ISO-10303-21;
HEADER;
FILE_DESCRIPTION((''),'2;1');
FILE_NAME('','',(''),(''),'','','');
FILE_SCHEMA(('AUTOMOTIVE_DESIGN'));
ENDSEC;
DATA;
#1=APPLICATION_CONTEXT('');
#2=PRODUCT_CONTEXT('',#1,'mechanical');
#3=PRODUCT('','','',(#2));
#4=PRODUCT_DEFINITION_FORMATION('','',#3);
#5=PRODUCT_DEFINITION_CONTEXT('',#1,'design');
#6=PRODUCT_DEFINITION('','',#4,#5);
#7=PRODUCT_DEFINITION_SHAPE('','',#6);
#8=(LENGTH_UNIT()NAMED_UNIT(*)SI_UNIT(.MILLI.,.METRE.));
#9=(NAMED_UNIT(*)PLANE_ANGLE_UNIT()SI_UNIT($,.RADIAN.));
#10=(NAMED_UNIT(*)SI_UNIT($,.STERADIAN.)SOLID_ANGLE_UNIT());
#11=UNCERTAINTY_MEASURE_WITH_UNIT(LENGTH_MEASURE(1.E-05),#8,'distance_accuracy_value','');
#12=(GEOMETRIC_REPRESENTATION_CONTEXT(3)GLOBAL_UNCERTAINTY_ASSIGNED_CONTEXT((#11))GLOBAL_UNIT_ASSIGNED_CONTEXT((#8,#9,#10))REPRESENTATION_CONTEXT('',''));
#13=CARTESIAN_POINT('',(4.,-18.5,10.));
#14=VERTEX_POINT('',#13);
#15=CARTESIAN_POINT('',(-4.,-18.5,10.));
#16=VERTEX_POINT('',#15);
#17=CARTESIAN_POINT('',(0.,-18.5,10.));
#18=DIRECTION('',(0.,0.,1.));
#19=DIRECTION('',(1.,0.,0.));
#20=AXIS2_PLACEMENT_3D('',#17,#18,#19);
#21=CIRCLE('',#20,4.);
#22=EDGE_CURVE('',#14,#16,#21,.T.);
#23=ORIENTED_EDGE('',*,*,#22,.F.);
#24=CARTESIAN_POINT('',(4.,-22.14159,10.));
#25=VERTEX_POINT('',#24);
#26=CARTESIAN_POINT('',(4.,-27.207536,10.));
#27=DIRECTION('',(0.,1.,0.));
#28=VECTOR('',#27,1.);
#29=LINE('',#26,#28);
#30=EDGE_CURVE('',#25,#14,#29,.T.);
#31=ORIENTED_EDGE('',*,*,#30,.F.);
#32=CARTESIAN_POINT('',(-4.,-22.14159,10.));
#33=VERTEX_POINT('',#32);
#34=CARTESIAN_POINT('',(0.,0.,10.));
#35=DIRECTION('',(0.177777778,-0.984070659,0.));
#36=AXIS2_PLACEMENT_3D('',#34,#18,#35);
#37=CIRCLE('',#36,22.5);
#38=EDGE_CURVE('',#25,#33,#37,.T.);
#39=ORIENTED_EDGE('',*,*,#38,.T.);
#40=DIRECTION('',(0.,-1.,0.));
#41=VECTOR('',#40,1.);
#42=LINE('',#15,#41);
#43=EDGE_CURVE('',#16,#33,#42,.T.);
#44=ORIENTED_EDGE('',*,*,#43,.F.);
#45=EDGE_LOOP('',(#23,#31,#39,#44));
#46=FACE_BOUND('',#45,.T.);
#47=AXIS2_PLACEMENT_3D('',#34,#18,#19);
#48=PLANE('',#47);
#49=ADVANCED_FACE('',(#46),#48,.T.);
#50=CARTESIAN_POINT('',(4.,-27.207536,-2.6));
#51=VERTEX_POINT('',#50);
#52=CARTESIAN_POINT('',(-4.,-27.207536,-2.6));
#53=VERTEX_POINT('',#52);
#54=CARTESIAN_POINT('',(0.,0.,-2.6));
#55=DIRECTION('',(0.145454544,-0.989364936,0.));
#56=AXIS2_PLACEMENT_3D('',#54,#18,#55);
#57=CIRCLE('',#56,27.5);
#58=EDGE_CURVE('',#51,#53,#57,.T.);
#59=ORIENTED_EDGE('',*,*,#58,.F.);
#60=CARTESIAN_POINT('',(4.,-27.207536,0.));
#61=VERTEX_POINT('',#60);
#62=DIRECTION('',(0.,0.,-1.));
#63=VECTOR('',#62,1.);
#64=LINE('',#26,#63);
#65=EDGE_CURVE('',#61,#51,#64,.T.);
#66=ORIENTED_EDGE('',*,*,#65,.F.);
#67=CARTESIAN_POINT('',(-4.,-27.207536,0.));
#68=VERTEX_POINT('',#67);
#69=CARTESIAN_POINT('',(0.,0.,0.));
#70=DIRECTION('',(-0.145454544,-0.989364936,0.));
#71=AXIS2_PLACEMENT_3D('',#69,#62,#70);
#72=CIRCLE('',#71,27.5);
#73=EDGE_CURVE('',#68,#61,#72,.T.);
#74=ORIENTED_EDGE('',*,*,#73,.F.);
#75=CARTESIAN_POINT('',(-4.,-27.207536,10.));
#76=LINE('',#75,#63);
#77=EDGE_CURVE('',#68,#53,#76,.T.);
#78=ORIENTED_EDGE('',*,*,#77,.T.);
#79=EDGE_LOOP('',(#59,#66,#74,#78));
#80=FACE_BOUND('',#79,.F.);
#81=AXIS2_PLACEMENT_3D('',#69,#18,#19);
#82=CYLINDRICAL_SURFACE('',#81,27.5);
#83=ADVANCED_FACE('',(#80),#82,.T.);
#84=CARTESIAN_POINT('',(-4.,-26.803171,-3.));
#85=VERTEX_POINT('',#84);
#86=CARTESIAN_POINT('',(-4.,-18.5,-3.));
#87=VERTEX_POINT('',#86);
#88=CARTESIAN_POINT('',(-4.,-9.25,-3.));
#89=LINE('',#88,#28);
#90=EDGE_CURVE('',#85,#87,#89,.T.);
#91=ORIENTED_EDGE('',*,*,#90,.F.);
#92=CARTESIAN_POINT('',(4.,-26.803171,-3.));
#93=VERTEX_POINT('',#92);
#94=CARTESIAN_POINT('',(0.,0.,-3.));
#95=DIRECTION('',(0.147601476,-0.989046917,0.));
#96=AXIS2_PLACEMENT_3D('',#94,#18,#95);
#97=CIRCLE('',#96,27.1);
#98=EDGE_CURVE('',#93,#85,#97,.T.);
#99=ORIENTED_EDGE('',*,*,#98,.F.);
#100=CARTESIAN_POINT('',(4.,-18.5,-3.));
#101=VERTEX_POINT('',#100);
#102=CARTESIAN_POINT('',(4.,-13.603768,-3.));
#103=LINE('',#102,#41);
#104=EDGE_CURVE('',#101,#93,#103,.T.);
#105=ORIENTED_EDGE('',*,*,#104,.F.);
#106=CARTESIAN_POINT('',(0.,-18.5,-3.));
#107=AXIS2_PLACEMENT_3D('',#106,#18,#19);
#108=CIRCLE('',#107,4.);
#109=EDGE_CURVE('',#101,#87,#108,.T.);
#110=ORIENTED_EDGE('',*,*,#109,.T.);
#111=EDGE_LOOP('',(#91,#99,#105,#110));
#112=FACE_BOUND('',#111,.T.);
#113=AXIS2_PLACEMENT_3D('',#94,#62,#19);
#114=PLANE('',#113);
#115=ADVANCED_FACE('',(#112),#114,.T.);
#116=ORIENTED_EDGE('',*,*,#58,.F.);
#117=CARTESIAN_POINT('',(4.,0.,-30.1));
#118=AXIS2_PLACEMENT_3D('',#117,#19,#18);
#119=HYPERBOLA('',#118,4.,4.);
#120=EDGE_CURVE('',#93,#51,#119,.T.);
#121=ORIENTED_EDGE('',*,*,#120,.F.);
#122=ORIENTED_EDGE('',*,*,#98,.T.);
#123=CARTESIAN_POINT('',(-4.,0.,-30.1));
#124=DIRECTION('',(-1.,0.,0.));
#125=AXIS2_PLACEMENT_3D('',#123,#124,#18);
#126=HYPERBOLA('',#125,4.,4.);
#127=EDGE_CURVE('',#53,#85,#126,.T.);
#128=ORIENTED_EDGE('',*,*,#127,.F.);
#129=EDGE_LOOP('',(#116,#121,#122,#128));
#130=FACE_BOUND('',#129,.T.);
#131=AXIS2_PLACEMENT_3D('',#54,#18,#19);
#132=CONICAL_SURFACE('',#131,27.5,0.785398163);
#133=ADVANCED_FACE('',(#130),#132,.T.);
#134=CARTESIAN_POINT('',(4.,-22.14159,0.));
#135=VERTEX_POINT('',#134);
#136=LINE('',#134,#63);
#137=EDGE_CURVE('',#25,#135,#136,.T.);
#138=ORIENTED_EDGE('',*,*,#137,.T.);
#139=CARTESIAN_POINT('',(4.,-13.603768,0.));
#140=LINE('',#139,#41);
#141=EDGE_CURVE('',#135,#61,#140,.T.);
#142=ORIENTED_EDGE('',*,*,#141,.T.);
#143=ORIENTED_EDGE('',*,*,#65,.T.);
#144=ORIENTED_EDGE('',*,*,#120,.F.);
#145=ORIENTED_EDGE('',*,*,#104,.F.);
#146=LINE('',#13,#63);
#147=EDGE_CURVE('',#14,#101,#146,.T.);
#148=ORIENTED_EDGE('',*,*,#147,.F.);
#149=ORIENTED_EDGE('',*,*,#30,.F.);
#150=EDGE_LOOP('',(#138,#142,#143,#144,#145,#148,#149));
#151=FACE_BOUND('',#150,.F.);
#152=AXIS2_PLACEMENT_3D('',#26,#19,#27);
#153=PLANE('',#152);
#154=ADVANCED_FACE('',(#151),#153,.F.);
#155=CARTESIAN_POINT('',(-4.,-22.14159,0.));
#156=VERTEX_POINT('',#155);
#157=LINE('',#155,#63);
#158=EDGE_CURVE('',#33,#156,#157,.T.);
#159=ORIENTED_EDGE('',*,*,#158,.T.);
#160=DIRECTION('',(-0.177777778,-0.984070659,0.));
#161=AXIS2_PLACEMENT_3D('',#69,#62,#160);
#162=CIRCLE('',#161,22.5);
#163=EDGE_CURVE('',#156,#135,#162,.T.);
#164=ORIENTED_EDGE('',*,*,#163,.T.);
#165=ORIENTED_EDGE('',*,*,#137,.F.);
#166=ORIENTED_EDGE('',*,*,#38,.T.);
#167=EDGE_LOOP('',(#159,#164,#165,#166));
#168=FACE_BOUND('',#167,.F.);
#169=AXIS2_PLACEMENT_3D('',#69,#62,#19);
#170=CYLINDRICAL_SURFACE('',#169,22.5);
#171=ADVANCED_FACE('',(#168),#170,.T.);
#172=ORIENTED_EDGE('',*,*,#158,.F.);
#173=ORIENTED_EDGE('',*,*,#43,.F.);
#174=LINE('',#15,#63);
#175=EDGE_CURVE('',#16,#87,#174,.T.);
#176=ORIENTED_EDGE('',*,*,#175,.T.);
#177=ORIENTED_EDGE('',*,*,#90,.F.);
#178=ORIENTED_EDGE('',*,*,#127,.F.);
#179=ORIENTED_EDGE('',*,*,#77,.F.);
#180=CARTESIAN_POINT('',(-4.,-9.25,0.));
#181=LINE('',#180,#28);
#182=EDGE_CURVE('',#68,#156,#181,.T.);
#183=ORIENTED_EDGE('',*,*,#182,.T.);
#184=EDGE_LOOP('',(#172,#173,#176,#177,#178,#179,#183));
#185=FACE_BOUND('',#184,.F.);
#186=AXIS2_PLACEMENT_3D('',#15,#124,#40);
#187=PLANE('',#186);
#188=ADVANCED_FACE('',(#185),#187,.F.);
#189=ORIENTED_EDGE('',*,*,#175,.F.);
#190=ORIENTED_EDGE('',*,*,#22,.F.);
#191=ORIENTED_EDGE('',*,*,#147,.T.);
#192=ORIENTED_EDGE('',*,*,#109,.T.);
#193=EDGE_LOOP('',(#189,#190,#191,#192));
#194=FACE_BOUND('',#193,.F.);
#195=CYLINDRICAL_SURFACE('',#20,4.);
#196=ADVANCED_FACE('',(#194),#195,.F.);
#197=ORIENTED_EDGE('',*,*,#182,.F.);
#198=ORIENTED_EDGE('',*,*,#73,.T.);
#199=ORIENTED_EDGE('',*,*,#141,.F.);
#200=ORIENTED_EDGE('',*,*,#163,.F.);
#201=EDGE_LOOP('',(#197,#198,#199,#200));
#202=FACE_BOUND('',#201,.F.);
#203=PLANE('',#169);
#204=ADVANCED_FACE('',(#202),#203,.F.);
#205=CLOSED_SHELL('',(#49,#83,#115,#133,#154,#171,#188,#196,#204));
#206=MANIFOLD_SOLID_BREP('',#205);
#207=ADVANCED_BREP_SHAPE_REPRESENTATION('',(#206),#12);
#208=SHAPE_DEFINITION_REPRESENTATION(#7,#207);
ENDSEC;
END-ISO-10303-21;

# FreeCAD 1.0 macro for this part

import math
import FreeCAD as App
import Part
import Sketcher
Q = App.Units.Quantity


def edges_at(feature, points):
    """Names of the edges that pass closest to the given points."""
    edges = feature.Shape.Edges
    near = lambda p: min(range(len(edges)), key=lambda i: edges[i].distToShape(Part.Vertex(*p))[0])
    return sorted({f"Edge{near(p) + 1}" for p in points})

doc = App.newDocument("Part")
params = doc.addObject("Spreadsheet::Sheet", "Params")
for row, (alias, value) in enumerate([
    ("sketch1_diameter", "45 mm"),
    ("pad1_length", "10 mm"),
    ("sketch2_diameter", "55 mm"),
    ("pad2_length", "3 mm"),
    ("chamfer_size", "0.4 mm"),
    ("sketch3_radius", "4 mm"),
    ("pocket1_length", "25 mm"),
], start=1):
    params.set(f"A{row}", alias)
    params.set(f"B{row}", "=" + value)
    params.setAlias(f"B{row}", alias)

body = doc.addObject("PartDesign::Body", "Body")

# Sketch on XY plane
sketch1 = body.newObject("Sketcher::SketchObject", "Sketch")
sketch1.AttachmentSupport = (doc.getObject("XY_Plane"), [""])
sketch1.MapMode = "FlatFace"
sketch1.addGeometry(Part.Circle(App.Vector(0, 0, 0), App.Vector(0, 0, 1), 22), False)
sketch1.addConstraint([
    Sketcher.Constraint("Coincident", 0, 3, -1, 1),
    Sketcher.Constraint("Diameter", 0, Q("45 mm")),
])
sketch1.setExpression("Constraints[1]", "Params.sketch1_diameter")
pad1 = body.newObject("PartDesign::Pad", "Pad")
pad1.Profile = sketch1
pad1.setExpression("Length", "Params.pad1_length")

# Sketch on XY plane
sketch2 = body.newObject("Sketcher::SketchObject", "Sketch001")
sketch2.AttachmentSupport = (doc.getObject("XY_Plane"), [""])
sketch2.MapMode = "FlatFace"
sketch2.addGeometry(Part.Circle(App.Vector(0, 0, 0), App.Vector(0, 0, 1), 28), False)
sketch2.addConstraint([
    Sketcher.Constraint("Coincident", 0, 3, -1, 1),
    Sketcher.Constraint("Diameter", 0, Q("55 mm")),
])
sketch2.setExpression("Constraints[1]", "Params.sketch2_diameter")
pad2 = body.newObject("PartDesign::Pad", "Pad001")
pad2.Profile = sketch2
pad2.setExpression("Length", "Params.pad2_length")
pad2.Reversed = True
doc.recompute()

chamfer = body.newObject("PartDesign::Chamfer", "Chamfer")
chamfer.Base = (pad2, edges_at(pad2, [(-27.5, 0, -3)]))
chamfer.setExpression("Size", "Params.chamfer_size")

# Sketch on XY plane
sketch3 = body.newObject("Sketcher::SketchObject", "Sketch002")
sketch3.AttachmentSupport = (doc.getObject("XY_Plane"), [""])
sketch3.MapMode = "FlatFace"
sketch3.AttachmentOffset = App.Placement(App.Vector(0, 0, 10), App.Rotation())
sketch3.addGeometry([
    Part.LineSegment(App.Vector(4, -27.2, 0), App.Vector(4, -18.5, 0)),
    Part.ArcOfCircle(Part.Circle(App.Vector(0, -18.5, 0), App.Vector(0, 0, 1), 4), math.radians(0), math.radians(180)),
    Part.LineSegment(App.Vector(-4, -18.5, 0), App.Vector(-4, -27.2, 0)),
    Part.ArcOfCircle(Part.Circle(App.Vector(0, 0, 0), App.Vector(0, 0, 1), 27.5), math.radians(-98.36), math.radians(-81.64)),
], False)
sketch3.addConstraint([
    Sketcher.Constraint("Tangent", 0, 2, 1, 1),
    Sketcher.Constraint("Tangent", 1, 2, 2, 1),
    Sketcher.Constraint("Coincident", 2, 2, 3, 1),
    Sketcher.Constraint("Coincident", 3, 2, 0, 1),
    Sketcher.Constraint("Vertical", 0),
    Sketcher.Constraint("Vertical", 2),
    Sketcher.Constraint("Symmetric", 2, 2, 3, 2, -2),
    Sketcher.Constraint("Radius", 1, Q("4 mm")),
    Sketcher.Constraint("DistanceY", 1, 3, -1, 1, Q("18.5 mm")),
    Sketcher.Constraint("Radius", 3, Q("27.500026 mm")),
    Sketcher.Constraint("DistanceY", 0, 1, 0, 2, Q("8.707536 mm")),
])
sketch3.setExpression("Constraints[7]", "Params.sketch3_radius")
pocket1 = body.newObject("PartDesign::Pocket", "Pocket")
pocket1.Profile = sketch3
pocket1.setExpression("Length", "Params.pocket1_length")

doc.recompute()
